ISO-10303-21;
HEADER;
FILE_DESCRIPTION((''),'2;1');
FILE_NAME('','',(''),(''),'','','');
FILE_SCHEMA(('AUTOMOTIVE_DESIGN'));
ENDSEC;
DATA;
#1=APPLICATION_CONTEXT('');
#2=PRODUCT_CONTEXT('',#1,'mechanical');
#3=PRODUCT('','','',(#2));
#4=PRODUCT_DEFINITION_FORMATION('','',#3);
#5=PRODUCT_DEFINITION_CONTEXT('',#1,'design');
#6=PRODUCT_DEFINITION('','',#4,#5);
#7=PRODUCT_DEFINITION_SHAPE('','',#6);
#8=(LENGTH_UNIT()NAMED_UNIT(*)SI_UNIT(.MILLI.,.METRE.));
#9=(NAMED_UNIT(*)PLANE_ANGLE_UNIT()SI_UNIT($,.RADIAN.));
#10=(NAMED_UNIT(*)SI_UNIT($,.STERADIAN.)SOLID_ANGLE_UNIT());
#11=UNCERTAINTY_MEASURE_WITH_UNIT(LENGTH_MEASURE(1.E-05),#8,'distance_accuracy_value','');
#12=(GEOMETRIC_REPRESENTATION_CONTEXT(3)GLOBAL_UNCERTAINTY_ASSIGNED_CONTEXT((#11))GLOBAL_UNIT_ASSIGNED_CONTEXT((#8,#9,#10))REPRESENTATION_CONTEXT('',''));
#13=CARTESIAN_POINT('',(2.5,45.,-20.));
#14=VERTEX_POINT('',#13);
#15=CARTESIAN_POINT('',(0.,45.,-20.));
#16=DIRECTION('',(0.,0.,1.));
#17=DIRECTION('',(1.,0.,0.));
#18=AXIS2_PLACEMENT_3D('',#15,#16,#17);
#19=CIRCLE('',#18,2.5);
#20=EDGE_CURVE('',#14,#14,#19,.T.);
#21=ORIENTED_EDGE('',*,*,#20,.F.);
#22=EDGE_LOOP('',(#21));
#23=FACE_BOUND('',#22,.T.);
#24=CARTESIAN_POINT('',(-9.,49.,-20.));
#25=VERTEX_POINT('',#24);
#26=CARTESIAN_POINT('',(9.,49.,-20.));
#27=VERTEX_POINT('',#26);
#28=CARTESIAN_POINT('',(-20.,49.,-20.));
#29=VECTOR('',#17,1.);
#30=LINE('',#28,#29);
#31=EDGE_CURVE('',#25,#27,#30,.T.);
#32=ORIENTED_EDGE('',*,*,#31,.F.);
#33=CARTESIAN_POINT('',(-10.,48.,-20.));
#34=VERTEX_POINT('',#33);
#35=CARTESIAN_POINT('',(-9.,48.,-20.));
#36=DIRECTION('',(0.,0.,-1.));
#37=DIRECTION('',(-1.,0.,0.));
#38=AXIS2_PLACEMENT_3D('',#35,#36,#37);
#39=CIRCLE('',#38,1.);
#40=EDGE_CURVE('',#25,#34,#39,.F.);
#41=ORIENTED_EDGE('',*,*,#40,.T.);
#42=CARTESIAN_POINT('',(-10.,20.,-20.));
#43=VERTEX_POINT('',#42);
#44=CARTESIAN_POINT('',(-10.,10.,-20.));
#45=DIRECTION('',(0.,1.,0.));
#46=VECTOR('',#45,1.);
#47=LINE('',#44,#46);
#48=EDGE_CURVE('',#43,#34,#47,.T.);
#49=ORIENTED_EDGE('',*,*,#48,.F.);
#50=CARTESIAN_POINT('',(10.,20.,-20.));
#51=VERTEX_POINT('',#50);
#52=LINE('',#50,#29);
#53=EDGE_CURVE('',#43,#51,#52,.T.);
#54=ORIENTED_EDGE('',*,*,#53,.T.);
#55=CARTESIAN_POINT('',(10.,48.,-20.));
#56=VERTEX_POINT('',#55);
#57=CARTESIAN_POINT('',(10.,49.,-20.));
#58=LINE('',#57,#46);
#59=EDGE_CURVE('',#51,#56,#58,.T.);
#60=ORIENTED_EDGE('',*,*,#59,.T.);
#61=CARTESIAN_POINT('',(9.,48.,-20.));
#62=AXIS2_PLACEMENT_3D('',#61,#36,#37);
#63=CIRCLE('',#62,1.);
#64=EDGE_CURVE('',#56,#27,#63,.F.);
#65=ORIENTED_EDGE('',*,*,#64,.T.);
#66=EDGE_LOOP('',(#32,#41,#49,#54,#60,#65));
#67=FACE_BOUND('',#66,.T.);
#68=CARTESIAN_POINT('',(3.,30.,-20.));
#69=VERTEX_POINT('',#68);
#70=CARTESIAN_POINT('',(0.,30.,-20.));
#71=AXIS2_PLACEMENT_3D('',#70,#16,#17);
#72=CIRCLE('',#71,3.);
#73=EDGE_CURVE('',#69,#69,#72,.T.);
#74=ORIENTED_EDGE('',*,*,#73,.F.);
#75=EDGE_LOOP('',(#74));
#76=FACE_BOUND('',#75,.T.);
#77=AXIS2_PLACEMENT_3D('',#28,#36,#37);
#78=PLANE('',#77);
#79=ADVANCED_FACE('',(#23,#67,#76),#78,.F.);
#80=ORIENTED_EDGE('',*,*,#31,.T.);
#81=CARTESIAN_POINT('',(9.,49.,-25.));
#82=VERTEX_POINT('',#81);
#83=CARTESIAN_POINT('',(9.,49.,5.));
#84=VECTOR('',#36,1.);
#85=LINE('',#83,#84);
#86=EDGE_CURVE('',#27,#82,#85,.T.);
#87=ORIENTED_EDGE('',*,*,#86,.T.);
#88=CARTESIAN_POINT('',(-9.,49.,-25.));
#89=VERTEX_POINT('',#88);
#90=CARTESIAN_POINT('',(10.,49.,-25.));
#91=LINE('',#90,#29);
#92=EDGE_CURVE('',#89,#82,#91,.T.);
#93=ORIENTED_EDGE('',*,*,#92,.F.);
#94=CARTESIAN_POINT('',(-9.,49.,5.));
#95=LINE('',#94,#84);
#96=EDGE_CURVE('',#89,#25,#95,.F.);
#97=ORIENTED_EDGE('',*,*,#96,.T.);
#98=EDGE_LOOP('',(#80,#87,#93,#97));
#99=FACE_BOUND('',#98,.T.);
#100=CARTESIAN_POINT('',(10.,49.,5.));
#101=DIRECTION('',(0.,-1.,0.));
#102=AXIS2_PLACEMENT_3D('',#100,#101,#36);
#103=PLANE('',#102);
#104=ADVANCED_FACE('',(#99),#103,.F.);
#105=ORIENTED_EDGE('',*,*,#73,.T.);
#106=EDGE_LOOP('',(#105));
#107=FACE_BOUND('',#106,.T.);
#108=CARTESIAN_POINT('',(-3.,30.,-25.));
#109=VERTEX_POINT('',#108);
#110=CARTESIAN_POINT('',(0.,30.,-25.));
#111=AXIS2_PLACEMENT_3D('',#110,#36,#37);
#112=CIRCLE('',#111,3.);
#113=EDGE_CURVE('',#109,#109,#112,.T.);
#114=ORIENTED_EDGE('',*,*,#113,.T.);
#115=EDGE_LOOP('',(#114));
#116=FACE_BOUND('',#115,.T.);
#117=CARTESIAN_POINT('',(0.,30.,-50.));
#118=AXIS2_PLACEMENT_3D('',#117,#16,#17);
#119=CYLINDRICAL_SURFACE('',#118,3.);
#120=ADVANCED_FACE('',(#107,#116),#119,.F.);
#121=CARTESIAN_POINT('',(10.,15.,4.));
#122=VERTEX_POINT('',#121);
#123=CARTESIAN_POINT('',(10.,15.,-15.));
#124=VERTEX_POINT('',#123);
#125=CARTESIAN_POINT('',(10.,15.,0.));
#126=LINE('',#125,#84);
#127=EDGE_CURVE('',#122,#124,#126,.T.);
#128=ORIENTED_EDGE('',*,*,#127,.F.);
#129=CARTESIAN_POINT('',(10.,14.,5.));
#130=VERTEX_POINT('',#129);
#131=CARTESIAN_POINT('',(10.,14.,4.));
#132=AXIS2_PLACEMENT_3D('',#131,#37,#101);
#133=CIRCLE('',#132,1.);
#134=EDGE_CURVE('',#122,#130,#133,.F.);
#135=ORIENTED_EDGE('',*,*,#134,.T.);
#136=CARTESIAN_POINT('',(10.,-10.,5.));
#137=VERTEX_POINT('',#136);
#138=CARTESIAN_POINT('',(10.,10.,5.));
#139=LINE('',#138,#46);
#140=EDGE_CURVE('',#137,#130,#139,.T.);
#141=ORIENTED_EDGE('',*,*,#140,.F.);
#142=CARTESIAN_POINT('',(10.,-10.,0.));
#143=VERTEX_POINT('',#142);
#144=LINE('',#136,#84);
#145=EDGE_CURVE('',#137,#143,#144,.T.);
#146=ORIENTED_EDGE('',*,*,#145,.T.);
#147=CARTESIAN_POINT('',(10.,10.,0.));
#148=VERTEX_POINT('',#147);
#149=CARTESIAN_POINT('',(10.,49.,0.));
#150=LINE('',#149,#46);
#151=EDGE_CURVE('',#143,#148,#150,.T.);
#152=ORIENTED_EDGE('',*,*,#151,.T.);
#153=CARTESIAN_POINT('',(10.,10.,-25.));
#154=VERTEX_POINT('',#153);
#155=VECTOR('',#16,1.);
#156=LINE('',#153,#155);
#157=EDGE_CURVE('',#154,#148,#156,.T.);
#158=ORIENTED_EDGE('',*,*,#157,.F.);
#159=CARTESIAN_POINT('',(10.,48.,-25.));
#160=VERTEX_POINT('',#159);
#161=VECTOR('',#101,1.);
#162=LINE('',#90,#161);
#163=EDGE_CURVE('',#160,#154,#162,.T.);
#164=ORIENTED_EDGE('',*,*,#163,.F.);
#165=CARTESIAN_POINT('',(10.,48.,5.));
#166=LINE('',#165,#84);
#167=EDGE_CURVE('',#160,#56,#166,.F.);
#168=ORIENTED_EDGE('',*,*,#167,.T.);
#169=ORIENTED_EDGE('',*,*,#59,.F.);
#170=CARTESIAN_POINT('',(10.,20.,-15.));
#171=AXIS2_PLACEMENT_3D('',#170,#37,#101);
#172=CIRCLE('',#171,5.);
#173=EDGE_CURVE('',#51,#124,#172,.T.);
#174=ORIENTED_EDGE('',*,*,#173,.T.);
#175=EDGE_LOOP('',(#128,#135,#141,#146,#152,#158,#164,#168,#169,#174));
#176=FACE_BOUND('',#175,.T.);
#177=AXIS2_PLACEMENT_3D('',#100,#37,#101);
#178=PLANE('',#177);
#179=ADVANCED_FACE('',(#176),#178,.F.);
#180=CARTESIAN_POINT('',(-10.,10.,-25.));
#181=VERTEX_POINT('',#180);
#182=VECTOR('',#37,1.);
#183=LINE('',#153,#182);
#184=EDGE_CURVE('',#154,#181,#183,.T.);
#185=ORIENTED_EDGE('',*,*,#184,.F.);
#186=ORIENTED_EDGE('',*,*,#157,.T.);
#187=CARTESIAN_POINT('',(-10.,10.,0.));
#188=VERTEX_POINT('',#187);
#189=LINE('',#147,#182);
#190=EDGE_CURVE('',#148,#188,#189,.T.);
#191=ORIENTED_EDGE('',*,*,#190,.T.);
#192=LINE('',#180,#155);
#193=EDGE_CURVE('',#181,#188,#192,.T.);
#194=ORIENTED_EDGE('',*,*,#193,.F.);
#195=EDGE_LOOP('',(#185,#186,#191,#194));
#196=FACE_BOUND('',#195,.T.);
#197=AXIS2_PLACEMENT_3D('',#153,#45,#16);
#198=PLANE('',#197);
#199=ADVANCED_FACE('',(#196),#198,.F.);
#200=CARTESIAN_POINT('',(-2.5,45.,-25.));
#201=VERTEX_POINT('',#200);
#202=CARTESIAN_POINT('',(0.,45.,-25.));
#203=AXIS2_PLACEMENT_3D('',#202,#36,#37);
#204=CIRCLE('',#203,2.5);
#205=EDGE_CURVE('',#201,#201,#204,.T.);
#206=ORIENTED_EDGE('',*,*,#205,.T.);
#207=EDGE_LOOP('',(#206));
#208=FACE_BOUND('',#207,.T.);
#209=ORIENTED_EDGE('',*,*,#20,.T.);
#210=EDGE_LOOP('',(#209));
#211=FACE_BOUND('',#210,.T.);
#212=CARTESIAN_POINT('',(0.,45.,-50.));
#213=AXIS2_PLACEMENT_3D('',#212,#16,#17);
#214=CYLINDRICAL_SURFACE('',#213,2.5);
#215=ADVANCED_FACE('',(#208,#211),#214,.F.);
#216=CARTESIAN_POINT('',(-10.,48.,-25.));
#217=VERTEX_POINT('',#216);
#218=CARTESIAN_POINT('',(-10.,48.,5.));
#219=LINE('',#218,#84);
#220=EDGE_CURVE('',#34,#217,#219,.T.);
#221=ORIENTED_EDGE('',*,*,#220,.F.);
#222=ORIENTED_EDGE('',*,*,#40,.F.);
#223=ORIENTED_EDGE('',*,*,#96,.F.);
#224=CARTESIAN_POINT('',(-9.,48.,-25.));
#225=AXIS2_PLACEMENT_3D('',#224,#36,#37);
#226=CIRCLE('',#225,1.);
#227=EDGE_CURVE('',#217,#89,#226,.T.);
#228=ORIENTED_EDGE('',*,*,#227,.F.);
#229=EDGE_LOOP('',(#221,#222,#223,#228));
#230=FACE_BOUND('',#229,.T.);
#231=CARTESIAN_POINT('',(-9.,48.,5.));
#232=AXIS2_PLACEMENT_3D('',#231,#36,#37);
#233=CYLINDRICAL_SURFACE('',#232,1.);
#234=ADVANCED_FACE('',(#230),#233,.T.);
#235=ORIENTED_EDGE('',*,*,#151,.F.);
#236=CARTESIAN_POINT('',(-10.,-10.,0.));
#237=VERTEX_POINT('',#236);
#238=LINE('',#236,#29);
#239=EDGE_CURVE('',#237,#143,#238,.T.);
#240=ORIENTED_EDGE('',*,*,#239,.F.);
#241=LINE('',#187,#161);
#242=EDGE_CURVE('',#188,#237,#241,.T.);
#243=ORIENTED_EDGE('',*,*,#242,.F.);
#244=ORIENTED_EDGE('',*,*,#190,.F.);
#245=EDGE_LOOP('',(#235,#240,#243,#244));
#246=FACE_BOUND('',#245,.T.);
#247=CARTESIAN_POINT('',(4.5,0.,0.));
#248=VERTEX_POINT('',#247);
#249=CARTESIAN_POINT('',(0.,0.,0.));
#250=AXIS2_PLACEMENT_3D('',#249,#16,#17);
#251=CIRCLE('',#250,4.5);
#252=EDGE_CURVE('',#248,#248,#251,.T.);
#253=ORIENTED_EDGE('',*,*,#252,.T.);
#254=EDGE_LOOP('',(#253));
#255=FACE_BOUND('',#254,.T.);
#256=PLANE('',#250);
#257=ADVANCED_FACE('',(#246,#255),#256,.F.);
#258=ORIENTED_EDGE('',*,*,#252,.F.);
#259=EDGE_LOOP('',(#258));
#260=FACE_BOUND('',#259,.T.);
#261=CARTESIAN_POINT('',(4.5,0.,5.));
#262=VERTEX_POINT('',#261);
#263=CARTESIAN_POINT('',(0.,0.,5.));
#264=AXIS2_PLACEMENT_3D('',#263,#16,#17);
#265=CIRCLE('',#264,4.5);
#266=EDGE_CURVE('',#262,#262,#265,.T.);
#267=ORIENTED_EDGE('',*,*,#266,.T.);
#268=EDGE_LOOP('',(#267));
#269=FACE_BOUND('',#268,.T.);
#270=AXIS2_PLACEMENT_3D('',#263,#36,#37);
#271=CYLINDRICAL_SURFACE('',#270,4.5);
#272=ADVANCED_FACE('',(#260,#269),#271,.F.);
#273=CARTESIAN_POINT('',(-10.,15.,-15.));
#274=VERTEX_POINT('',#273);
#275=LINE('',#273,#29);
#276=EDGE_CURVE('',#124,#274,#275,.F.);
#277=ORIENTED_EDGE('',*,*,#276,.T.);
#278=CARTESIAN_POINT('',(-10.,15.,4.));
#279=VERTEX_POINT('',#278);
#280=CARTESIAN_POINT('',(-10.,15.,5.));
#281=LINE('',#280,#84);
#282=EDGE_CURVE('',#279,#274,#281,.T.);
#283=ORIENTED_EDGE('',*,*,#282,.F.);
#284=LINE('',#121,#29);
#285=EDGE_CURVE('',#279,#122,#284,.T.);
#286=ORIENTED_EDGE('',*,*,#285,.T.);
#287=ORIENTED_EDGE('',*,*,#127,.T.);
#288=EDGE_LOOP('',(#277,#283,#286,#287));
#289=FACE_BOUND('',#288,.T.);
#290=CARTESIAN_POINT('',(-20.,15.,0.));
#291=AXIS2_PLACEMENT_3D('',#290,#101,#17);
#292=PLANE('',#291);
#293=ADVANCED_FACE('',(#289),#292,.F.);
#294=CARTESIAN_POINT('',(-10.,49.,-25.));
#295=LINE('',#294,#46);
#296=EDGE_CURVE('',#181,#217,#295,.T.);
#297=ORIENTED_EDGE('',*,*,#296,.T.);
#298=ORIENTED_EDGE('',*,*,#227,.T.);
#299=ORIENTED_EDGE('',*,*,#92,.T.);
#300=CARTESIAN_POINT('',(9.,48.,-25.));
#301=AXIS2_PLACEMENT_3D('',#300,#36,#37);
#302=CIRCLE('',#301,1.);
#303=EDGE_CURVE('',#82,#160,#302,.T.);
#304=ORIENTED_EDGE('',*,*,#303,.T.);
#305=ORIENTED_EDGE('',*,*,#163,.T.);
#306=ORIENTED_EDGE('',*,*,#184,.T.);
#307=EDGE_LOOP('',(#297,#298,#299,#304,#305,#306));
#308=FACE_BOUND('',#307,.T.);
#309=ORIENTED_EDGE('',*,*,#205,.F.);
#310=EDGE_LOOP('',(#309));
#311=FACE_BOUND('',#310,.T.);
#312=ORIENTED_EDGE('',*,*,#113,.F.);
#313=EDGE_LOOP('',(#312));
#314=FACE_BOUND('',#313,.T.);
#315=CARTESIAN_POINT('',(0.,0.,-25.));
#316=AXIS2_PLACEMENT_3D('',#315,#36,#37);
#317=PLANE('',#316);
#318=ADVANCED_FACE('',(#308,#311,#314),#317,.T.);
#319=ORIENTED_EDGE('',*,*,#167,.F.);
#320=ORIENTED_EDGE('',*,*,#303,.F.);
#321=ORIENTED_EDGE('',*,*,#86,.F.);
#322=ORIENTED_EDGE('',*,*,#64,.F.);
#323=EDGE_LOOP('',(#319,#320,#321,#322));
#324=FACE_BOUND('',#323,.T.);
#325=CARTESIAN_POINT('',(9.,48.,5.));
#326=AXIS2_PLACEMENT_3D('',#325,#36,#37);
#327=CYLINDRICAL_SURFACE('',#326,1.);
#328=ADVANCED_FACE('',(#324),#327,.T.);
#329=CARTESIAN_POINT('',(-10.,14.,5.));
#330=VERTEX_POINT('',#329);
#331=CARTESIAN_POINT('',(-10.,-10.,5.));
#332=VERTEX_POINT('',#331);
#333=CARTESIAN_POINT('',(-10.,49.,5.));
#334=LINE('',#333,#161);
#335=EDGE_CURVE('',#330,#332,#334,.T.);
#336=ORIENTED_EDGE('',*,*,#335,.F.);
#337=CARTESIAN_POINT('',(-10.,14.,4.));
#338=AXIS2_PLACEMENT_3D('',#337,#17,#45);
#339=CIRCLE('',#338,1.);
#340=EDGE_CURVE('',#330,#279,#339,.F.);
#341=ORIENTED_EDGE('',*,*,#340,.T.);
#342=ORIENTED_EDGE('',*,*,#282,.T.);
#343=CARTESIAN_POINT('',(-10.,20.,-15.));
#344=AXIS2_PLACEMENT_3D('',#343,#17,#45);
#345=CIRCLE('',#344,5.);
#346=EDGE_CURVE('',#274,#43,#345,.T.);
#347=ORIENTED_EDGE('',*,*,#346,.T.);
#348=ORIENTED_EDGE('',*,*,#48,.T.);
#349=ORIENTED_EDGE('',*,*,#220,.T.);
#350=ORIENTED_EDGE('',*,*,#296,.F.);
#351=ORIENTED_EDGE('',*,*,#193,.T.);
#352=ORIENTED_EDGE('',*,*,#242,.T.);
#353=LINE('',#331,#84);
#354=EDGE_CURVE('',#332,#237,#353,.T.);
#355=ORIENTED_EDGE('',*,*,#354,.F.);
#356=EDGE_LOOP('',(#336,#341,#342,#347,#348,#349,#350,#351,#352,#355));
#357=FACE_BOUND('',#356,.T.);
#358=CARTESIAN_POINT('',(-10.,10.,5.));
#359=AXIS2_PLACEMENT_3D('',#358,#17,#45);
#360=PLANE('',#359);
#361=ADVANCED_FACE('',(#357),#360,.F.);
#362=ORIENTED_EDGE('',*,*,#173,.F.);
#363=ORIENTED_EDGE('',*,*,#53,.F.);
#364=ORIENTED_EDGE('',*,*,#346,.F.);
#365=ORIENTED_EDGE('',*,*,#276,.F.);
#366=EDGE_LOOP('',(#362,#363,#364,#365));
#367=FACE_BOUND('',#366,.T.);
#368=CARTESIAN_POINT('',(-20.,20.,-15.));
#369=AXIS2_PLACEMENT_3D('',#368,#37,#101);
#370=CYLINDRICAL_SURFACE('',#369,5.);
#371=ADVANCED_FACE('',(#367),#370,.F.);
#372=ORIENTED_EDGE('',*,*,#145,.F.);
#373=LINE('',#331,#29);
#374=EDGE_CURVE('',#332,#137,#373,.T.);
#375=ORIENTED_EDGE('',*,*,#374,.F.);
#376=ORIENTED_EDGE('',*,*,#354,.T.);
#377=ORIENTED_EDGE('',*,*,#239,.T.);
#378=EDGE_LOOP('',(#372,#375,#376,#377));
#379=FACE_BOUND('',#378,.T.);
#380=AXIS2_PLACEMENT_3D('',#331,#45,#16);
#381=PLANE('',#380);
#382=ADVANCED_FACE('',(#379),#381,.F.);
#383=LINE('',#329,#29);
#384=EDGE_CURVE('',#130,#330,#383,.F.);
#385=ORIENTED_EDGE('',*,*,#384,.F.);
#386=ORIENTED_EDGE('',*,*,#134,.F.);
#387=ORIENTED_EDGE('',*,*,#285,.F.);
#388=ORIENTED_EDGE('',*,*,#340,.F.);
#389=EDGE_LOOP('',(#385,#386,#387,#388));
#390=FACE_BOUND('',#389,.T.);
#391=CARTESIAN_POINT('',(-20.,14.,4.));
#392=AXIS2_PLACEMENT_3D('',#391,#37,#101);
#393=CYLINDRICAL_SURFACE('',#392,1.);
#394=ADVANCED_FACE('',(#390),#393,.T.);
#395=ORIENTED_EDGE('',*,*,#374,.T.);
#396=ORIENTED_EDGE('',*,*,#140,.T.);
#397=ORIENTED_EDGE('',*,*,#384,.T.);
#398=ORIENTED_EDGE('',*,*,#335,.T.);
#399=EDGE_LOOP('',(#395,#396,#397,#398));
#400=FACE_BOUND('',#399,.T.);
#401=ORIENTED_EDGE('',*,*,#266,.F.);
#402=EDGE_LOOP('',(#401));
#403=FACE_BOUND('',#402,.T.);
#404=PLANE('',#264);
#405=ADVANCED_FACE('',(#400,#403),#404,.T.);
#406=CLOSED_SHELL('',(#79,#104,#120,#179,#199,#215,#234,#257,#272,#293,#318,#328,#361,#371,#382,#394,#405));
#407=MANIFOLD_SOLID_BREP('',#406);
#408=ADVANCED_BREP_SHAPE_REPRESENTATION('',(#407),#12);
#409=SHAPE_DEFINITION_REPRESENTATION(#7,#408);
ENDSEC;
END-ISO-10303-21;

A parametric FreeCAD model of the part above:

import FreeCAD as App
import Part
import Sketcher
Q = App.Units.Quantity


def edges_at(feature, points):
    """Names of the edges that pass closest to the given points."""
    edges = feature.Shape.Edges
    near = lambda p: min(range(len(edges)), key=lambda i: edges[i].distToShape(Part.Vertex(*p))[0])
    return sorted({f"Edge{near(p) + 1}" for p in points})


def add_polygon(sketch, points):
    """Adds a closed chain of lines whose ends are joined by coincident constraints."""
    first, n = sketch.GeometryCount, len(points)
    for a, b in zip(points, points[1:] + points[:1]):
        sketch.addGeometry(Part.LineSegment(App.Vector(*a, 0), App.Vector(*b, 0)), False)
    for i in range(n):
        sketch.addConstraint(Sketcher.Constraint("Coincident", first + i, 2, first + (i + 1) % n, 1))

doc = App.newDocument("Part")
params = doc.addObject("Spreadsheet::Sheet", "Params")
for row, (alias, value) in enumerate([
    ("sketch1_diameter", "9 mm"),
    ("sketch1_width", "20 mm"),
    ("sketch1_height", "59 mm"),
    ("pad1_length", "5 mm"),
    ("sketch2_width", "20 mm"),
    ("sketch2_height", "39 mm"),
    ("pad2_length", "25 mm"),
    ("sketch3_width", "34 mm"),
    ("sketch3_height", "25 mm"),
    ("pocket1_length", "30 mm"),
    ("sketch4_diameter", "5 mm"),
    ("sketch4_diameter2", "6 mm"),
    ("pocket2_length", "30 mm"),
    ("fillet_radius", "5 mm"),
    ("fillet2_radius", "1 mm"),
], start=1):
    params.set(f"A{row}", alias)
    params.set(f"B{row}", "=" + value)
    params.setAlias(f"B{row}", alias)

body = doc.addObject("PartDesign::Body", "Body")

sketch1 = body.newObject("Sketcher::SketchObject", "Sketch")
sketch1.AttachmentSupport = (doc.getObject("XY_Plane"), [""])
sketch1.MapMode = "FlatFace"
add_polygon(sketch1, [(-10, -10), (10, -10), (10, 49), (-10, 49)])
sketch1.addGeometry(Part.Circle(App.Vector(0, 0, 0), App.Vector(0, 0, 1), 4.5), False)
sketch1.addConstraint([
    Sketcher.Constraint("Horizontal", 0),
    Sketcher.Constraint("Vertical", 1),
    Sketcher.Constraint("Horizontal", 2),
    Sketcher.Constraint("Vertical", 3),
    Sketcher.Constraint("Coincident", 4, 3, -1, 1),
    Sketcher.Constraint("Diameter", 4, Q("9 mm")),
    Sketcher.Constraint("DistanceX", 0, 1, 0, 2, Q("20 mm")),
    Sketcher.Constraint("DistanceY", 1, 1, 1, 2, Q("59 mm")),
    Sketcher.Constraint("DistanceX", -1, 1, 0, 2, Q("10 mm")),
    Sketcher.Constraint("DistanceY", 0, 2, -1, 1, Q("10 mm")),
])
sketch1.setExpression("Constraints[9]", "Params.sketch1_diameter")
sketch1.setExpression("Constraints[10]", "Params.sketch1_width")
sketch1.setExpression("Constraints[11]", "Params.sketch1_height")
pad1 = body.newObject("PartDesign::Pad", "Pad")
pad1.Profile = sketch1
pad1.setExpression("Length", "Params.pad1_length")

sketch2 = body.newObject("Sketcher::SketchObject", "Sketch001")
sketch2.AttachmentSupport = (doc.getObject("XY_Plane"), [""])
sketch2.MapMode = "FlatFace"
add_polygon(sketch2, [(10, 49), (10, 10), (-10, 10), (-10, 49)])
sketch2.addConstraint([
    Sketcher.Constraint("Vertical", 0),
    Sketcher.Constraint("Horizontal", 1),
    Sketcher.Constraint("Vertical", 2),
    Sketcher.Constraint("Horizontal", 3),
    Sketcher.Constraint("DistanceX", 1, 2, 1, 1, Q("20 mm")),
    Sketcher.Constraint("DistanceY", 0, 2, 0, 1, Q("39 mm")),
    Sketcher.Constraint("DistanceX", -1, 1, 0, 2, Q("10 mm")),
    Sketcher.Constraint("DistanceY", -1, 1, 0, 2, Q("10 mm")),
])
sketch2.setExpression("Constraints[8]", "Params.sketch2_width")
sketch2.setExpression("Constraints[9]", "Params.sketch2_height")
pad2 = body.newObject("PartDesign::Pad", "Pad001")
pad2.Profile = sketch2
pad2.setExpression("Length", "Params.pad2_length")
pad2.Reversed = True

sketch3 = body.newObject("Sketcher::SketchObject", "Sketch002")
sketch3.AttachmentSupport = (doc.getObject("YZ_Plane"), [""])
sketch3.MapMode = "FlatFace"
sketch3.AttachmentOffset = App.Placement(App.Vector(0, 0, 10), App.Rotation())
add_polygon(sketch3, [(15, 5), (15, -20), (49, -20), (49, 5)])
sketch3.addConstraint([
    Sketcher.Constraint("Vertical", 0),
    Sketcher.Constraint("Horizontal", 1),
    Sketcher.Constraint("Vertical", 2),
    Sketcher.Constraint("Horizontal", 3),
    Sketcher.Constraint("DistanceX", 1, 1, 1, 2, Q("34 mm")),
    Sketcher.Constraint("DistanceY", 0, 2, 0, 1, Q("25 mm")),
    Sketcher.Constraint("DistanceX", -1, 1, 0, 2, Q("15 mm")),
    Sketcher.Constraint("DistanceY", 0, 2, -1, 1, Q("20 mm")),
])
sketch3.setExpression("Constraints[8]", "Params.sketch3_width")
sketch3.setExpression("Constraints[9]", "Params.sketch3_height")
pocket1 = body.newObject("PartDesign::Pocket", "Pocket")
pocket1.Profile = sketch3
pocket1.setExpression("Length", "Params.pocket1_length")

sketch4 = body.newObject("Sketcher::SketchObject", "Sketch003")
sketch4.AttachmentSupport = (doc.getObject("XY_Plane"), [""])
sketch4.MapMode = "FlatFace"
sketch4.AttachmentOffset = App.Placement(App.Vector(0, 0, -20), App.Rotation())
sketch4.addGeometry([
    Part.Circle(App.Vector(0, 45, 0), App.Vector(0, 0, 1), 2.5),
    Part.Circle(App.Vector(0, 30, 0), App.Vector(0, 0, 1), 3),
], False)
sketch4.addConstraint([
    Sketcher.Constraint("PointOnObject", 0, 3, -2),
    Sketcher.Constraint("PointOnObject", 1, 3, -2),
    Sketcher.Constraint("Diameter", 0, Q("5 mm")),
    Sketcher.Constraint("Diameter", 1, Q("6 mm")),
    Sketcher.Constraint("DistanceY", -1, 1, 0, 3, Q("45 mm")),
    Sketcher.Constraint("DistanceY", -1, 1, 1, 3, Q("30 mm")),
])
sketch4.setExpression("Constraints[2]", "Params.sketch4_diameter")
sketch4.setExpression("Constraints[3]", "Params.sketch4_diameter2")
pocket2 = body.newObject("PartDesign::Pocket", "Pocket001")
pocket2.Profile = sketch4
pocket2.setExpression("Length", "Params.pocket2_length")
doc.recompute()

fillet = body.newObject("PartDesign::Fillet", "Fillet")
fillet.Base = (pocket2, edges_at(pocket2, [(0, 15, -20)]))
fillet.setExpression("Radius", "Params.fillet_radius")
doc.recompute()

fillet2 = body.newObject("PartDesign::Fillet", "Fillet001")
fillet2.Base = (fillet, edges_at(fillet, [(-10, 49, -22.5), (10, 49, -22.5), (0, 15, 5)]))
fillet2.setExpression("Radius", "Params.fillet2_radius")

doc.recompute()
